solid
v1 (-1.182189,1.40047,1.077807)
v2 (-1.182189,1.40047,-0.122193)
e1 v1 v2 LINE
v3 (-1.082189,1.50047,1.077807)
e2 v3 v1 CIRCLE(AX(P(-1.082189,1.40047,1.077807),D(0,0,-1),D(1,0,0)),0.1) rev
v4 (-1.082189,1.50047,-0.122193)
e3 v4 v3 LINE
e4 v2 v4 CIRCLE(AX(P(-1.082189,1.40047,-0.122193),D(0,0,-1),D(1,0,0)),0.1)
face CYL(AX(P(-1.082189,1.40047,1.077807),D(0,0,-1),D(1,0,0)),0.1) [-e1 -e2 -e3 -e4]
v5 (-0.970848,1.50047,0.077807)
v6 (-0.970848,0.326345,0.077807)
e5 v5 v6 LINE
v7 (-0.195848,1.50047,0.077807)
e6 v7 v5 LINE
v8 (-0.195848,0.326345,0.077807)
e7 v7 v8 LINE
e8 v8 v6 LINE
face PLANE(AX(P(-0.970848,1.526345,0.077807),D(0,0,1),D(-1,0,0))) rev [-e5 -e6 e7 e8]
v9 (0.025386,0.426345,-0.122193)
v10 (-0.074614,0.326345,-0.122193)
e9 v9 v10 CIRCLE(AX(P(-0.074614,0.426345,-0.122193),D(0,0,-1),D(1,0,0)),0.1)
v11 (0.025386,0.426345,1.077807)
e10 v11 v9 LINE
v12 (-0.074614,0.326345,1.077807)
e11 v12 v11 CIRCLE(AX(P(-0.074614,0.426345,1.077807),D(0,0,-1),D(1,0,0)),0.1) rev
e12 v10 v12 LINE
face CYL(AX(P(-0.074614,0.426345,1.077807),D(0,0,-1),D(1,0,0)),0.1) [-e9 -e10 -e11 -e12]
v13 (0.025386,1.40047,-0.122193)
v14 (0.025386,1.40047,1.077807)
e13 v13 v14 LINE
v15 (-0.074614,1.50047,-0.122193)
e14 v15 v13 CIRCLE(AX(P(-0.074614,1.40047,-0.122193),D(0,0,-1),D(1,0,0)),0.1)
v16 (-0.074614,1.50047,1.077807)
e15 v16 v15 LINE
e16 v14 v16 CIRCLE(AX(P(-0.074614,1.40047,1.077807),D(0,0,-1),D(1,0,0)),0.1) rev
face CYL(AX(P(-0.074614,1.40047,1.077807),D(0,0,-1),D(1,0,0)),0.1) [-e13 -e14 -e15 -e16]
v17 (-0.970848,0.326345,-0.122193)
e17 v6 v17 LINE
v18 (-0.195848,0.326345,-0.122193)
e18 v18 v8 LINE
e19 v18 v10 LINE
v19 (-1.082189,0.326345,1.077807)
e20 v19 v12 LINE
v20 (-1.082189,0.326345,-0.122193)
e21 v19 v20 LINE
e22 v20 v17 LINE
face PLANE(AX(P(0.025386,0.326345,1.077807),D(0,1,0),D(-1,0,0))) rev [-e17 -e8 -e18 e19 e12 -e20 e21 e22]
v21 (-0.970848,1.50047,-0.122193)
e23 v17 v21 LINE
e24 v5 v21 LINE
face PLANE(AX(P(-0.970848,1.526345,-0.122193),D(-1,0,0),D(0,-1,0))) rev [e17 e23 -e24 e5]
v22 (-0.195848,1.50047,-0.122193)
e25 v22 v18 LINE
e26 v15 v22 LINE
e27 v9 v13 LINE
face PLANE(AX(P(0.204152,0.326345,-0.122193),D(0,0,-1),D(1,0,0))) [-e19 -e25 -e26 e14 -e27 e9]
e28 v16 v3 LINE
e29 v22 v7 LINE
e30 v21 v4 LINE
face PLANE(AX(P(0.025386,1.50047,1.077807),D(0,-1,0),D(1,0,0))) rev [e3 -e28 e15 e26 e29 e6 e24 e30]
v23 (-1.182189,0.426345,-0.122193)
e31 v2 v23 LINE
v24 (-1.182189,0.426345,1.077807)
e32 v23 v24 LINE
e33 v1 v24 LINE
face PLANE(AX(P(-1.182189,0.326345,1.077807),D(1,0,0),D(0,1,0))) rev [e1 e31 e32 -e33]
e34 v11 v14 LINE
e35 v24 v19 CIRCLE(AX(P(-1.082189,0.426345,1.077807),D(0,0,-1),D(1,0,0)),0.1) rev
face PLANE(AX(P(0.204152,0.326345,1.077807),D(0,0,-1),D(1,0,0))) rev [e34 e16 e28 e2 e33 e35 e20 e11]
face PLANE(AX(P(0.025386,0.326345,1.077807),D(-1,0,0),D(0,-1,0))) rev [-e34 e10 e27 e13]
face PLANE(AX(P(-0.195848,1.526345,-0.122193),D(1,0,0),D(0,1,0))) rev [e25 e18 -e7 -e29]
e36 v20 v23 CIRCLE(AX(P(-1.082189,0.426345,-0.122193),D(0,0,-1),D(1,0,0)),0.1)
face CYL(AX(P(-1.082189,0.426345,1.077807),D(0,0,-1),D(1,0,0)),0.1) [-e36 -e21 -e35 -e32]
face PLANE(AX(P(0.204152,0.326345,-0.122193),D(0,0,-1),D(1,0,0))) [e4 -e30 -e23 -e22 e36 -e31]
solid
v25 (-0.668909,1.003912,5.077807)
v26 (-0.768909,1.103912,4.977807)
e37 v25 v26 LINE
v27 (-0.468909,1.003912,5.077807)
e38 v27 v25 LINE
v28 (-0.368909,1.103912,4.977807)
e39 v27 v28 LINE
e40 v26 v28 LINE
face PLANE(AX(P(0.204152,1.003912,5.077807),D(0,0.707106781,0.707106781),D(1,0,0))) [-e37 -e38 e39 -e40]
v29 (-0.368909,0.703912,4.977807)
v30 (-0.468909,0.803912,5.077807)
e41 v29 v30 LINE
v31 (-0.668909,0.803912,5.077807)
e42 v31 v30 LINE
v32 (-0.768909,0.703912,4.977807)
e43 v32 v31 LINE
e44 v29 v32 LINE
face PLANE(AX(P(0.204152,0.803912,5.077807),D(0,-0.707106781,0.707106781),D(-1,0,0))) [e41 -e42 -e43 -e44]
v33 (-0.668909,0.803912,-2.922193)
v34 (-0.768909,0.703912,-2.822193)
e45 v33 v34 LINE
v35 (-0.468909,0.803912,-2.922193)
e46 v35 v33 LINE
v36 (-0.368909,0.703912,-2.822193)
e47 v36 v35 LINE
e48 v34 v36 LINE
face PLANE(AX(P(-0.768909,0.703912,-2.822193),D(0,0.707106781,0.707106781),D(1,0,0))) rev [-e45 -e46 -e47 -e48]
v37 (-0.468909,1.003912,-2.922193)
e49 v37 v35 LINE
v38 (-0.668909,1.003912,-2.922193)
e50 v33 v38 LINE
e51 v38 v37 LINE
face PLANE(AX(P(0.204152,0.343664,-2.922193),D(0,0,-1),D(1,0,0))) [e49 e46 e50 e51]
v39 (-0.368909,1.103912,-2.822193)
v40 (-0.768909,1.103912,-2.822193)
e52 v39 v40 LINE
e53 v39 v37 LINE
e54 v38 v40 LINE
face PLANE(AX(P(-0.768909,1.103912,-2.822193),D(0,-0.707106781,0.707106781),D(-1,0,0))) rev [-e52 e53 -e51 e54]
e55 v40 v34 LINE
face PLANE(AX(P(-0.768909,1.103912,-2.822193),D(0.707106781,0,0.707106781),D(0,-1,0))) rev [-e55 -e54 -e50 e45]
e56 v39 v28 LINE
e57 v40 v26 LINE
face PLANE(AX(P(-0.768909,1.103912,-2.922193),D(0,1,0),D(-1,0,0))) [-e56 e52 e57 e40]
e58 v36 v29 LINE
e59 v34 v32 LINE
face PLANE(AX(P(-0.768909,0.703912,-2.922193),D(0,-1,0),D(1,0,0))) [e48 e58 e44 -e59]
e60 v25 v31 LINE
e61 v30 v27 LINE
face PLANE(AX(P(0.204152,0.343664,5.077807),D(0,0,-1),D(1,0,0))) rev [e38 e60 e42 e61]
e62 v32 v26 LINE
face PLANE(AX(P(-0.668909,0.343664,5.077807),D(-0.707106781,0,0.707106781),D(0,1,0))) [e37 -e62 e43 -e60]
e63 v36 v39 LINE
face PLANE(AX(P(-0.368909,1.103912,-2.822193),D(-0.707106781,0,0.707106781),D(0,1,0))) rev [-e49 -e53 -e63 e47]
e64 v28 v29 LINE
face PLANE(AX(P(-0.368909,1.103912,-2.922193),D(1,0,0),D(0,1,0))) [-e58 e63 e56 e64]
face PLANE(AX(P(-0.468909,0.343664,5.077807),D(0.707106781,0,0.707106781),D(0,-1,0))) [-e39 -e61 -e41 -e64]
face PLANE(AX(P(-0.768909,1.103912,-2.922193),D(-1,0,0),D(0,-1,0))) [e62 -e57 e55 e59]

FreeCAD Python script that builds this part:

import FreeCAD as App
import Part
import Sketcher

V = App.Vector


def edges_at(feature, points):
    """Names of the edges that pass closest to the given points."""
    edges = feature.Shape.Edges
    near = lambda p: min(range(len(edges)), key=lambda i: edges[i].distToShape(Part.Vertex(*p))[0])
    return sorted({f"Edge{near(p) + 1}" for p in points})

doc = App.newDocument("Part")
body = doc.addObject("PartDesign::Body", "Body")

sketch1 = body.newObject("Sketcher::SketchObject", "Sketch")
sketch1.AttachmentSupport = (doc.getObject("XZ_Plane"), [""])
sketch1.MapMode = "FlatFace"
sketch1.addGeometry([
    Part.LineSegment(V(-1.2, 0.2, 0), V(-1.2, 1.4, 0)),
    Part.LineSegment(V(-1.2, 1.4, 0), V(0, 1.4, 0)),
    Part.LineSegment(V(0, 1.4, 0), V(0, 0.2, 0)),
    Part.LineSegment(V(0, 0.2, 0), V(-1.2, 0.2, 0)),
], False)
sketch1.addConstraint([
    Sketcher.Constraint("Coincident", 0, 2, 1, 1),
    Sketcher.Constraint("Coincident", 1, 2, 2, 1),
    Sketcher.Constraint("Coincident", 2, 2, 3, 1),
    Sketcher.Constraint("Coincident", 3, 2, 0, 1),
    Sketcher.Constraint("Vertical", 0),
    Sketcher.Constraint("Horizontal", 1),
    Sketcher.Constraint("Vertical", 2),
    Sketcher.Constraint("Horizontal", 3),
    Sketcher.Constraint("PointOnObject", 1, 2, -2),
    Sketcher.Constraint("DistanceX", 1, 1, 1, 2, 1.174126),
    Sketcher.Constraint("DistanceY", 0, 1, 0, 2, 1.207575),
    Sketcher.Constraint("DistanceY", -1, 1, 0, 2, 1.38634),
])
pad1 = body.newObject("PartDesign::Pad", "Pad")
pad1.Profile = sketch1
pad1.Length = 1.2
pad1.Reversed = True
doc.recompute()

fillet = body.newObject("PartDesign::Fillet", "Fillet")
fillet.Base = (pad1, edges_at(pad1, [
    (0, 0.6, 1.386),
    (-1.174, 0.6, 1.386),
    (-1.174, 0.6, 0.179),
    (0, 0.6, 0.179),
]))
fillet.Radius = 0.1

sketch2 = body.newObject("Sketcher::SketchObject", "Sketch001")
sketch2.AttachmentSupport = (doc.getObject("YZ_Plane"), [""])
sketch2.MapMode = "FlatFace"
sketch2.addGeometry([
    Part.LineSegment(V(0.2, 1.18, 0), V(0, 1.18, 0)),
    Part.LineSegment(V(0, 1.18, 0), V(0, 0.4, 0)),
    Part.LineSegment(V(0, 0.4, 0), V(0.2, 0.4, 0)),
    Part.LineSegment(V(0.2, 0.4, 0), V(0.2, 1.18, 0)),
], False)
sketch2.addConstraint([
    Sketcher.Constraint("Coincident", 0, 2, 1, 1),
    Sketcher.Constraint("Coincident", 1, 2, 2, 1),
    Sketcher.Constraint("Coincident", 2, 2, 3, 1),
    Sketcher.Constraint("Coincident", 3, 2, 0, 1),
    Sketcher.Constraint("Horizontal", 0),
    Sketcher.Constraint("Vertical", 1),
    Sketcher.Constraint("Horizontal", 2),
    Sketcher.Constraint("Vertical", 3),
    Sketcher.Constraint("PointOnObject", 0, 2, -2),
    Sketcher.Constraint("DistanceX", 0, 2, 0, 1, 0.2),
    Sketcher.Constraint("DistanceY", -1, 1, 1, 2, 0.4),
    Sketcher.Constraint("DistanceY", 1, 2, 1, 1, 0.775),
])
pocket1 = body.newObject("PartDesign::Pocket", "Pocket")
pocket1.Profile = sketch2
pocket1.Length = 1.2
body2 = doc.addObject("PartDesign::Body", "Body001")

sketch3 = body2.newObject("Sketcher::SketchObject", "Sketch002")
sketch3.AttachmentSupport = (doc.getObject("XZ_Plane001"), [""])
sketch3.MapMode = "FlatFace"
sketch3.AttachmentOffset = App.Placement(V(0, 0, -1.2), App.Rotation())
sketch3.addGeometry([
    Part.LineSegment(V(-0.76, 0.57, 0), V(-0.76, 0.97, 0)),
    Part.LineSegment(V(-0.76, 0.97, 0), V(-0.36, 0.97, 0)),
    Part.LineSegment(V(-0.36, 0.97, 0), V(-0.36, 0.57, 0)),
    Part.LineSegment(V(-0.36, 0.57, 0), V(-0.76, 0.57, 0)),
], False)
sketch3.addConstraint([
    Sketcher.Constraint("Coincident", 0, 2, 1, 1),
    Sketcher.Constraint("Coincident", 1, 2, 2, 1),
    Sketcher.Constraint("Coincident", 2, 2, 3, 1),
    Sketcher.Constraint("Coincident", 3, 2, 0, 1),
    Sketcher.Constraint("Vertical", 0),
    Sketcher.Constraint("Horizontal", 1),
    Sketcher.Constraint("Vertical", 2),
    Sketcher.Constraint("Horizontal", 3),
    Sketcher.Constraint("Equal", 3, 0),
    Sketcher.Constraint("DistanceX", 1, 1, 1, 2, 0.4),
    Sketcher.Constraint("DistanceY", -1, 1, 0, 2, 0.973061),
    Sketcher.Constraint("DistanceX", 0, 2, -1, 1, 0.760248),
])
pad2 = body2.newObject("PartDesign::Pad", "Pad001")
pad2.Profile = sketch3
pad2.Type = "TwoLengths"
pad2.Length = 4
pad2.Length2 = 4
pad2.Reversed = True
doc.recompute()

chamfer = body2.newObject("PartDesign::Chamfer", "Chamfer")
chamfer.Base = (pad2, edges_at(pad2, [
    (-0.76, 5.2, 0.773),
    (-0.56, 5.2, 0.973),
    (-0.36, 5.2, 0.773),
    (-0.56, 5.2, 0.573),
]))
chamfer.Size = 0.1
doc.recompute()

chamfer2 = body2.newObject("PartDesign::Chamfer", "Chamfer001")
chamfer2.Base = (chamfer, edges_at(chamfer, [
    (-0.36, -2.8, 0.773),
    (-0.56, -2.8, 0.573),
    (-0.76, -2.8, 0.773),
    (-0.56, -2.8, 0.973),
]))
chamfer2.Size = 0.1
body3 = doc.addObject("PartDesign::Body", "Body002")
doc.recompute()

body2.Placement = App.Placement(V(0.204152, 0.326345, -0.122193), App.Rotation(V(0.577350269, -0.577350269, -0.577350269), 120))
boolean = body3.newObject("PartDesign::Boolean", "Boolean")
boolean.Type = "Fuse"
boolean.addObjects([body2])
body4 = doc.addObject("PartDesign::Body", "Body003")
doc.recompute()

body.Placement = App.Placement(V(0.204152, 0.326345, -0.122193), App.Rotation(V(0.577350269, -0.577350269, -0.577350269), 120))
boolean2 = body4.newObject("PartDesign::Boolean", "Boolean001")
boolean2.Type = "Fuse"
boolean2.addObjects([body])
body5 = doc.addObject("PartDesign::Body", "Body004")
doc.recompute()

body3.Placement = App.Placement(V(0, 0.01732, 0), App.Rotation(V(0, 0, 1), 0))
boolean3 = body5.newObject("PartDesign::Boolean", "Boolean002")
boolean3.Type = "Fuse"
boolean3.addObjects([body3])

doc.recompute()
